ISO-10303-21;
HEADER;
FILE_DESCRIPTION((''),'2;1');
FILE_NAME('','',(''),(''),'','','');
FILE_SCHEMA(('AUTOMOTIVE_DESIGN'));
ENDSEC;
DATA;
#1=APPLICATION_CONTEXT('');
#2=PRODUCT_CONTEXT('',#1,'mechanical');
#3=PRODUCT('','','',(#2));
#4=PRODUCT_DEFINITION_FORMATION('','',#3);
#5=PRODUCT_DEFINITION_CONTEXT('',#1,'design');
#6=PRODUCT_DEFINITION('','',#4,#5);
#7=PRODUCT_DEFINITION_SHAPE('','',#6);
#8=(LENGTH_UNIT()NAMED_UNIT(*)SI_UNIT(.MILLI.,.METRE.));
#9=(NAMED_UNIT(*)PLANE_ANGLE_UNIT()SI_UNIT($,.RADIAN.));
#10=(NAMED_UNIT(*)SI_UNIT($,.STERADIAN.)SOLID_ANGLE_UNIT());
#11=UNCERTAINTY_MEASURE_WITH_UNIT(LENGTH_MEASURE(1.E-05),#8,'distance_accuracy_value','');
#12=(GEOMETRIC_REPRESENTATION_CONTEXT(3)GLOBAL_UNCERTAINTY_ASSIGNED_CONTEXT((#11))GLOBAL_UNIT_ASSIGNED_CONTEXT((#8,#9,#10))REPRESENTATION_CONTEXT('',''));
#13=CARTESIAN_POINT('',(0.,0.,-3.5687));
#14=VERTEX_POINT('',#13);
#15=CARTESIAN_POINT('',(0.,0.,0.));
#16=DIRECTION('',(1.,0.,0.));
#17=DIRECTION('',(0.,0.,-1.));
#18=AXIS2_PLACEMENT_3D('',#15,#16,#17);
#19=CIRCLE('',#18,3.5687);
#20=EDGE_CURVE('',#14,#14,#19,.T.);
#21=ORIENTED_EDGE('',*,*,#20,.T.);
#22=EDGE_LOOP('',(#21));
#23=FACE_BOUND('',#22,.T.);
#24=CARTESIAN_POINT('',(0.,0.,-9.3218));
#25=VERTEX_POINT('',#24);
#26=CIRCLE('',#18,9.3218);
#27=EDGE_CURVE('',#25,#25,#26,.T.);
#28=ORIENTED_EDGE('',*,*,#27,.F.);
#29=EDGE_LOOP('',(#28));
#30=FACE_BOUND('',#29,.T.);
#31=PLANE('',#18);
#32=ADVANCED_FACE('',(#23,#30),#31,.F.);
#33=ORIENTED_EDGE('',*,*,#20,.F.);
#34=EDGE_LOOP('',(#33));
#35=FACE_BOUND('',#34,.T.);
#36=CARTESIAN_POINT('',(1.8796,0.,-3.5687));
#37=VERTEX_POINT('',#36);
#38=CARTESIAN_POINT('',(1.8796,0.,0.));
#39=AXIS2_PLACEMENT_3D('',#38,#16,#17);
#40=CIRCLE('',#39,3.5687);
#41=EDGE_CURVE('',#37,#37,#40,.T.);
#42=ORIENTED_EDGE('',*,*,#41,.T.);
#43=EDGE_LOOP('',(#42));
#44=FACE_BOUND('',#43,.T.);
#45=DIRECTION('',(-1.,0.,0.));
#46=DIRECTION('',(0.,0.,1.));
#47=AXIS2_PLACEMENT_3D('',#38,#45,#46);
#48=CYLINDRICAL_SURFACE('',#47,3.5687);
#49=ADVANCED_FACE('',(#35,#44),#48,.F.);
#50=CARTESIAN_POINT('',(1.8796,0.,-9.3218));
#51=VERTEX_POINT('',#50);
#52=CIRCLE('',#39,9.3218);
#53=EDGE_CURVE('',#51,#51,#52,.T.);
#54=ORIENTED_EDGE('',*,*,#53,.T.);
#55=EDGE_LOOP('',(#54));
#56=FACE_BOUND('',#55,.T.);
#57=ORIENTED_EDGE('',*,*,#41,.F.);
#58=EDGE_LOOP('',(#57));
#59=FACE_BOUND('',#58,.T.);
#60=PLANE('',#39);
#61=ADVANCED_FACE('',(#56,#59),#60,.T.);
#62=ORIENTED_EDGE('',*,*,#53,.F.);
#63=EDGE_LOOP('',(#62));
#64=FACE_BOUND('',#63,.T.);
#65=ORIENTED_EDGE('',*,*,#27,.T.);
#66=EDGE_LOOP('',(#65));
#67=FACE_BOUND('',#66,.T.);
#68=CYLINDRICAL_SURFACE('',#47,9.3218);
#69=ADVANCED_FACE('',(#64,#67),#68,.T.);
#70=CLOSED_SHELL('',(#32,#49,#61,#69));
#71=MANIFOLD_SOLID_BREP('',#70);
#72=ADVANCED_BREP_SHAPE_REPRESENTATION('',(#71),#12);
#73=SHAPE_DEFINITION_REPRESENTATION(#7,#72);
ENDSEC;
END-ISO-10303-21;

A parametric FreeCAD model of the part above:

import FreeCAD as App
import Part
import Sketcher

V = App.Vector
Q = App.Units.Quantity

doc = App.newDocument("Part")
body = doc.addObject("PartDesign::Body", "Body")

# Sketch on YZ plane
sketch1 = body.newObject("Sketcher::SketchObject", "Sketch")
sketch1.AttachmentSupport = (doc.getObject("YZ_Plane"), [""])
sketch1.MapMode = "FlatFace"
sketch1.addGeometry([
    Part.Circle(V(0, 0, 0), V(0, 0, 1), 9.3218),
    Part.Circle(V(0, 0, 0), V(0, 0, 1), 3.5687),
], False)
sketch1.addConstraint([
    Sketcher.Constraint("Coincident", 0, 3, -1, 1),
    Sketcher.Constraint("Coincident", 1, 3, -1, 1),
    Sketcher.Constraint("Diameter", 0, Q("0.734 in")),
    Sketcher.Constraint("Diameter", 1, Q("0.281 in")),
])
pad1 = body.newObject("PartDesign::Pad", "Pad")
pad1.Profile = sketch1
pad1.Length = Q("0.074 in")

doc.recompute()
